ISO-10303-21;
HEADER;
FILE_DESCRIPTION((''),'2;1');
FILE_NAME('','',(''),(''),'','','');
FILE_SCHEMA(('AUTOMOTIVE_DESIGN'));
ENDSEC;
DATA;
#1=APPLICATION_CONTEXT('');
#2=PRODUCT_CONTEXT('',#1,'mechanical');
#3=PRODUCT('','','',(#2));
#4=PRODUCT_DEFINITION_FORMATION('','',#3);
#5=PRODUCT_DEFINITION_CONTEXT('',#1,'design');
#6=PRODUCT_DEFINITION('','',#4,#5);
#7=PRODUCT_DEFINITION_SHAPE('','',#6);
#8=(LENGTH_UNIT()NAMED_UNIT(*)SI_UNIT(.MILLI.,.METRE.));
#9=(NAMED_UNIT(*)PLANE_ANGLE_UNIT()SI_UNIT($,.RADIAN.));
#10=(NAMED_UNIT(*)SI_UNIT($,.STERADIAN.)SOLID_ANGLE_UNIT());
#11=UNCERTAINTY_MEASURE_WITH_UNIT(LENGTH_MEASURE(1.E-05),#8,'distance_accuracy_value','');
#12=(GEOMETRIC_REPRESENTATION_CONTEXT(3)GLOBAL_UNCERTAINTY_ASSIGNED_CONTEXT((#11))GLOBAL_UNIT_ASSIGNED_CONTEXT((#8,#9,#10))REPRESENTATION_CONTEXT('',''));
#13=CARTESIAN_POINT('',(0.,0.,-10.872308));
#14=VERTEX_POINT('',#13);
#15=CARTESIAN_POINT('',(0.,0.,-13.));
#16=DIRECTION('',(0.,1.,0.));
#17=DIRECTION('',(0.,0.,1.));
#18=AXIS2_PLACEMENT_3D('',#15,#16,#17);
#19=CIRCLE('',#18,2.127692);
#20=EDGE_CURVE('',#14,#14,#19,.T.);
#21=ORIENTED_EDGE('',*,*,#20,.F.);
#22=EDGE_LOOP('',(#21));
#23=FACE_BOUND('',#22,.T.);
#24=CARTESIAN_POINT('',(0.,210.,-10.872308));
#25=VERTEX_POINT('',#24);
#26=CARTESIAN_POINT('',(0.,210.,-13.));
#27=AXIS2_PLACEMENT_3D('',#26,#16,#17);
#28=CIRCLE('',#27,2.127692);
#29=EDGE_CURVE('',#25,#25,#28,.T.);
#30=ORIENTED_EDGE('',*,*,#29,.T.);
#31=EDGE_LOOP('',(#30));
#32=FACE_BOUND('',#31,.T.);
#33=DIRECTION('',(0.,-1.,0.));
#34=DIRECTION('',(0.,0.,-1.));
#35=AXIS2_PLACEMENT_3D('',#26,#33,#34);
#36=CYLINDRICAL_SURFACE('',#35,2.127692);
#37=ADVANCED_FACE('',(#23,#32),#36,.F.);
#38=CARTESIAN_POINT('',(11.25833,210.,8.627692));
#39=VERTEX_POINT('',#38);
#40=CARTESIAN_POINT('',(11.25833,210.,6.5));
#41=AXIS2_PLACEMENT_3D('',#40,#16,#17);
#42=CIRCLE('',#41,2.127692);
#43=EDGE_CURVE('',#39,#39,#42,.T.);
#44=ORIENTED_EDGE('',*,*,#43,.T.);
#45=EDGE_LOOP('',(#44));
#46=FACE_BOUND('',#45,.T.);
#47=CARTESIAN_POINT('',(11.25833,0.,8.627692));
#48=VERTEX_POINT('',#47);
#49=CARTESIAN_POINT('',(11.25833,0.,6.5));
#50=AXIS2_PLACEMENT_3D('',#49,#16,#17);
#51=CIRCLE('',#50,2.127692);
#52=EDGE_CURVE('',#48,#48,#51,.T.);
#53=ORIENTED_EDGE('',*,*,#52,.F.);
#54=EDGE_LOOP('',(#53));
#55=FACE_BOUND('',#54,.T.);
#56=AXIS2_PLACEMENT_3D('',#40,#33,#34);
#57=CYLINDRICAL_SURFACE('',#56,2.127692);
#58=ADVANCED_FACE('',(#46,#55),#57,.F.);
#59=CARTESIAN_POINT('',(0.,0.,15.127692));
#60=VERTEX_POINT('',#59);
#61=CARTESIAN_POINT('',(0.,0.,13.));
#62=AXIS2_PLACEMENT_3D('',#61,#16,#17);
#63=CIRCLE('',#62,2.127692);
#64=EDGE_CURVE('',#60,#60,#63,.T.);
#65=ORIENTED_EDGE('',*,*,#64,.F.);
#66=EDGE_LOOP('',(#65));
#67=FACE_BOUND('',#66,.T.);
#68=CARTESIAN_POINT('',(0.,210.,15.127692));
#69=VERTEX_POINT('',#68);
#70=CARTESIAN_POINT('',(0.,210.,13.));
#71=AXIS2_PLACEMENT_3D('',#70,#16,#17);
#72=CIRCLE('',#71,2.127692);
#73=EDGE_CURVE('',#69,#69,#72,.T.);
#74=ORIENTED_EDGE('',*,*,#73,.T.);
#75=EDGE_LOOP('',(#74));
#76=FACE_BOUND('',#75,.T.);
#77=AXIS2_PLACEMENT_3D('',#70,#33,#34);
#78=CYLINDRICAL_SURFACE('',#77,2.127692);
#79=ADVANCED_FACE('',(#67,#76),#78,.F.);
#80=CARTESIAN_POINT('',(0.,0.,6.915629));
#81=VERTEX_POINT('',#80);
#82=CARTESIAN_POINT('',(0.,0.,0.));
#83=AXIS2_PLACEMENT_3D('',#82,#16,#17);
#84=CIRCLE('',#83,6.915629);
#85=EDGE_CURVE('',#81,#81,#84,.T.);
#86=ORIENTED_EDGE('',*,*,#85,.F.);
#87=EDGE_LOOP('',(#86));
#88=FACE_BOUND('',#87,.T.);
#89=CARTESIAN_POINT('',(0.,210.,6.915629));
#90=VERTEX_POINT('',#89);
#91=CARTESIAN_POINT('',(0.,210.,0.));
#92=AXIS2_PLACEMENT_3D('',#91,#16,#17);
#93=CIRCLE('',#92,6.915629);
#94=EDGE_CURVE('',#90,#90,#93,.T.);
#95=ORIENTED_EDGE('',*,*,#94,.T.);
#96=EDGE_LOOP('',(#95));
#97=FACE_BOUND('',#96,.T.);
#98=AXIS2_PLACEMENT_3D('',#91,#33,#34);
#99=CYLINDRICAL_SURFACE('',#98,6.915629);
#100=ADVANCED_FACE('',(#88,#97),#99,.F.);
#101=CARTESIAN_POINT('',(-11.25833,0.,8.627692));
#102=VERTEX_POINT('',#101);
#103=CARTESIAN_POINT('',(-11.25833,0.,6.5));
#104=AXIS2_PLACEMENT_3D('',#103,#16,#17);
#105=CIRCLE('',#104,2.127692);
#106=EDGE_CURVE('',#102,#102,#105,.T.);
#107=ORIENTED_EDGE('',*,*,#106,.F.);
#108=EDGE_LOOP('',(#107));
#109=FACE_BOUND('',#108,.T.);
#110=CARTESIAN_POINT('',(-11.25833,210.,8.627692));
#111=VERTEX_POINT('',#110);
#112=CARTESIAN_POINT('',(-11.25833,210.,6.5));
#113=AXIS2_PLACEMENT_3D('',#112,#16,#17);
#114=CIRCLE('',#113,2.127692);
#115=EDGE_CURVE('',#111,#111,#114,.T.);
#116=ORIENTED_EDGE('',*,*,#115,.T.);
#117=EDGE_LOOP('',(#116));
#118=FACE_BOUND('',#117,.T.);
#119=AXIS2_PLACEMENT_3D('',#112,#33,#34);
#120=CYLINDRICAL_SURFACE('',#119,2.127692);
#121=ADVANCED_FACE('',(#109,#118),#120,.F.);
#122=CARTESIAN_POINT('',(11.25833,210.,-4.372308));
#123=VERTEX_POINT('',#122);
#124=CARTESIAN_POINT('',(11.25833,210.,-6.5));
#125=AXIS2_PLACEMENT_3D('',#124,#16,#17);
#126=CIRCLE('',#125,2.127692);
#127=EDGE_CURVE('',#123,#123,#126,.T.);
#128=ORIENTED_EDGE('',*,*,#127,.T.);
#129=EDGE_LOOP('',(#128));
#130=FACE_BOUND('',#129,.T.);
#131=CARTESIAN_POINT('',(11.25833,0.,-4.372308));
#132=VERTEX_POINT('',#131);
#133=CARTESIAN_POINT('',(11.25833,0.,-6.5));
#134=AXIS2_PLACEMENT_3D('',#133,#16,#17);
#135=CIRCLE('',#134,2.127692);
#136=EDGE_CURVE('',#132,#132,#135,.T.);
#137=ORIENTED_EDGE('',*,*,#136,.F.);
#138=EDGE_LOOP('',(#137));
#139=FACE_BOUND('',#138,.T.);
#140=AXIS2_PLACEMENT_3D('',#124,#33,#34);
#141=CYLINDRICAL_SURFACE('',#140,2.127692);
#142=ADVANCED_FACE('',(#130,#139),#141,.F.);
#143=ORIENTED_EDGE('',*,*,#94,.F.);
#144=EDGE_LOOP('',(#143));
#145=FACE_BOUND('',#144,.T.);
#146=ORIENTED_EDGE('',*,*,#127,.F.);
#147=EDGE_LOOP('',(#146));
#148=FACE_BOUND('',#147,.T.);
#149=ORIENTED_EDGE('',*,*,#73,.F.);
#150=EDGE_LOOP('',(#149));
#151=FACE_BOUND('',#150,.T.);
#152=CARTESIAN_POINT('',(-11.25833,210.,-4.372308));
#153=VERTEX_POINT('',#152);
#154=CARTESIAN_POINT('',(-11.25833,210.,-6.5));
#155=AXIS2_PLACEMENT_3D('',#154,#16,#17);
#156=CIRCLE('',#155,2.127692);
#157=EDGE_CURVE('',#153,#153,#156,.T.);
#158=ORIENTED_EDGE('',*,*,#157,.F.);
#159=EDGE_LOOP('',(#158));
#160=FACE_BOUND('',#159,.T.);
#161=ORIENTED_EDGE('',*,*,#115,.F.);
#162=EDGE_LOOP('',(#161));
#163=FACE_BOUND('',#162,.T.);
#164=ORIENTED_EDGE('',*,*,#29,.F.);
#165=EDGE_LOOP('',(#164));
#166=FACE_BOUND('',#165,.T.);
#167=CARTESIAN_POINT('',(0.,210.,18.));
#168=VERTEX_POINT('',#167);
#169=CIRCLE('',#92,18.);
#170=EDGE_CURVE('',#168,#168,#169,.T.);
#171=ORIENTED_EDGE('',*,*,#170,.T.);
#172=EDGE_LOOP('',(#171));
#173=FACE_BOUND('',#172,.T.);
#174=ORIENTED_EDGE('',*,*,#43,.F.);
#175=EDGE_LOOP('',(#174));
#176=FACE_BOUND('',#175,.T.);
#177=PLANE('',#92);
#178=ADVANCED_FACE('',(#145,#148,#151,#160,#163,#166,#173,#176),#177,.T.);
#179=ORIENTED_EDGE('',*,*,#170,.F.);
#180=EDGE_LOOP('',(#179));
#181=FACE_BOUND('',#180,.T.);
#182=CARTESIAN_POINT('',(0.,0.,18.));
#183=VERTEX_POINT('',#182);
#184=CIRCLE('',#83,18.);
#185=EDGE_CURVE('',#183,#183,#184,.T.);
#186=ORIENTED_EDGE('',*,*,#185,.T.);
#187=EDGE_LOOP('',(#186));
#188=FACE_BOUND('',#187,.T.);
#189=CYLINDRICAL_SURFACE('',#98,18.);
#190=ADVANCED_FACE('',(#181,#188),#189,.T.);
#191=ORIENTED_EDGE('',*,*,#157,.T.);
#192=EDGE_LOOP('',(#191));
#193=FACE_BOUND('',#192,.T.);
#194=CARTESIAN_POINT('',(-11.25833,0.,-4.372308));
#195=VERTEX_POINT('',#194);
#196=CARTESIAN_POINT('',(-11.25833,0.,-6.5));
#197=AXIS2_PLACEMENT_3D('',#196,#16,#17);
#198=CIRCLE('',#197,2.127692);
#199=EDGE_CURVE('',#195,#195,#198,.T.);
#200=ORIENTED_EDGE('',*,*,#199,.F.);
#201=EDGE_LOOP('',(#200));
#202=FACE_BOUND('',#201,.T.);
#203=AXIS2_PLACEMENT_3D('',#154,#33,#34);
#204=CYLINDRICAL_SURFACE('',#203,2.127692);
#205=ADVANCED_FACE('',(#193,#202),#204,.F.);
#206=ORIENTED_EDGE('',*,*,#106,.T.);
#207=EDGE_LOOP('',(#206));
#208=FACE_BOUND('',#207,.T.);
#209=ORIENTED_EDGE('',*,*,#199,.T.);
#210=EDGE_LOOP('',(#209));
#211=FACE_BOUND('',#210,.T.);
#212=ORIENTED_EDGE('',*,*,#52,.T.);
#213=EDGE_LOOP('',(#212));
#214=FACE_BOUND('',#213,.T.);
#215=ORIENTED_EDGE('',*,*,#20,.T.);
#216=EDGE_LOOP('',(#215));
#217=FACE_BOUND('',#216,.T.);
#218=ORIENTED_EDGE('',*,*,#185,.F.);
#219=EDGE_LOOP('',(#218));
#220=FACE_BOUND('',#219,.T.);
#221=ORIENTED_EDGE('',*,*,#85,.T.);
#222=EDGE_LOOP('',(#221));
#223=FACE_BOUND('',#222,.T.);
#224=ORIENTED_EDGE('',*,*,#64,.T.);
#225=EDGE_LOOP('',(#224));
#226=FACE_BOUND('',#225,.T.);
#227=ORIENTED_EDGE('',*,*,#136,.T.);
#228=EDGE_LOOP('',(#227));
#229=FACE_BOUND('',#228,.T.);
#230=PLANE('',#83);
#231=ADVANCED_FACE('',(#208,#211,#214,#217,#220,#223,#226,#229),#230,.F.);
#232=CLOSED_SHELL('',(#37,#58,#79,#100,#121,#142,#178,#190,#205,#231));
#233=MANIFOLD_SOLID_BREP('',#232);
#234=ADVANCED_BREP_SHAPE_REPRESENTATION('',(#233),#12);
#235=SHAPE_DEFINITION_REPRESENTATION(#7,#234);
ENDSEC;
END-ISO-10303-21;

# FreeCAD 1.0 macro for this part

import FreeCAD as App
import Part
import Sketcher
Q = App.Units.Quantity

doc = App.newDocument("Part")
params = doc.addObject("Spreadsheet::Sheet", "Params")
for row, (alias, value) in enumerate([
    ("sketch1_diameter", "36 mm"),
    ("pad1_length", "210 mm"),
], start=1):
    params.set(f"A{row}", alias)
    params.set(f"B{row}", "=" + value)
    params.setAlias(f"B{row}", alias)

body = doc.addObject("PartDesign::Body", "Body")

# Sketch on XZ plane
sketch1 = body.newObject("Sketcher::SketchObject", "Sketch")
sketch1.AttachmentSupport = (doc.getObject("XZ_Plane"), [""])
sketch1.MapMode = "FlatFace"
sketch1.addGeometry(Part.Circle(App.Vector(0, 0, 0), App.Vector(0, 0, 1), 18), False)
sketch1.addGeometry(Part.Circle(App.Vector(-11.3, 6.5, 0), App.Vector(0, 0, 1), 2.1), False)
sketch1.addGeometry(Part.Circle(App.Vector(0, 13, 0), App.Vector(0, 0, 1), 2.1), False)
sketch1.addGeometry(Part.Circle(App.Vector(11.3, 6.5, 0), App.Vector(0, 0, 1), 2.1), False)
sketch1.addGeometry(Part.Circle(App.Vector(-11.3, -6.5, 0), App.Vector(0, 0, 1), 2.1), False)
sketch1.addGeometry(Part.Circle(App.Vector(0, 0, 0), App.Vector(0, 0, 1), 6.9), False)
sketch1.addGeometry(Part.Circle(App.Vector(11.3, -6.5, 0), App.Vector(0, 0, 1), 2.1), False)
sketch1.addGeometry(Part.Circle(App.Vector(0, -13, 0), App.Vector(0, 0, 1), 2.1), False)
sketch1.addConstraint(Sketcher.Constraint("Coincident", 0, 3, -1, 1))
sketch1.addConstraint(Sketcher.Constraint("Coincident", 5, 3, -1, 1))
sketch1.addConstraint(Sketcher.Constraint("Equal", 1, 2))
sketch1.addConstraint(Sketcher.Constraint("Equal", 2, 3))
sketch1.addConstraint(Sketcher.Constraint("Equal", 3, 4))
sketch1.addConstraint(Sketcher.Constraint("Equal", 4, 6))
sketch1.addConstraint(Sketcher.Constraint("Equal", 6, 7))
sketch1.addConstraint(Sketcher.Constraint("Symmetric", 3, 3, 4, 3, -1, 1))
sketch1.addConstraint(Sketcher.Constraint("Symmetric", 1, 3, 6, 3, -1, 1))
sketch1.addConstraint(Sketcher.Constraint("Symmetric", 2, 3, 7, 3, -1, 1))
sketch1.addConstraint(Sketcher.Constraint("Symmetric", 1, 3, 3, 3, -2))
sketch1.addConstraint(Sketcher.Constraint("PointOnObject", 2, 3, -2))
sketch1.addConstraint(Sketcher.Constraint("Diameter", 0, Q("36 mm")))
sketch1.addConstraint(Sketcher.Constraint("DistanceY", -1, 1, 2, 3, Q("13 mm")))
sketch1.addConstraint(Sketcher.Constraint("DistanceY", 4, 3, 1, 3, Q("13 mm")))
sketch1.addConstraint(Sketcher.Constraint("Diameter", 5, Q("13.831259 mm")))
sketch1.addConstraint(Sketcher.Constraint("Diameter", 1, Q("4.255385 mm")))
sketch1.addConstraint(Sketcher.Constraint("DistanceX", 1, 3, -1, 1, Q("11.25833 mm")))
sketch1.setExpression("Constraints[12]", "Params.sketch1_diameter")
pad1 = body.newObject("PartDesign::Pad", "Pad")
pad1.Profile = sketch1
pad1.setExpression("Length", "Params.pad1_length")
pad1.Reversed = True

doc.recompute()
